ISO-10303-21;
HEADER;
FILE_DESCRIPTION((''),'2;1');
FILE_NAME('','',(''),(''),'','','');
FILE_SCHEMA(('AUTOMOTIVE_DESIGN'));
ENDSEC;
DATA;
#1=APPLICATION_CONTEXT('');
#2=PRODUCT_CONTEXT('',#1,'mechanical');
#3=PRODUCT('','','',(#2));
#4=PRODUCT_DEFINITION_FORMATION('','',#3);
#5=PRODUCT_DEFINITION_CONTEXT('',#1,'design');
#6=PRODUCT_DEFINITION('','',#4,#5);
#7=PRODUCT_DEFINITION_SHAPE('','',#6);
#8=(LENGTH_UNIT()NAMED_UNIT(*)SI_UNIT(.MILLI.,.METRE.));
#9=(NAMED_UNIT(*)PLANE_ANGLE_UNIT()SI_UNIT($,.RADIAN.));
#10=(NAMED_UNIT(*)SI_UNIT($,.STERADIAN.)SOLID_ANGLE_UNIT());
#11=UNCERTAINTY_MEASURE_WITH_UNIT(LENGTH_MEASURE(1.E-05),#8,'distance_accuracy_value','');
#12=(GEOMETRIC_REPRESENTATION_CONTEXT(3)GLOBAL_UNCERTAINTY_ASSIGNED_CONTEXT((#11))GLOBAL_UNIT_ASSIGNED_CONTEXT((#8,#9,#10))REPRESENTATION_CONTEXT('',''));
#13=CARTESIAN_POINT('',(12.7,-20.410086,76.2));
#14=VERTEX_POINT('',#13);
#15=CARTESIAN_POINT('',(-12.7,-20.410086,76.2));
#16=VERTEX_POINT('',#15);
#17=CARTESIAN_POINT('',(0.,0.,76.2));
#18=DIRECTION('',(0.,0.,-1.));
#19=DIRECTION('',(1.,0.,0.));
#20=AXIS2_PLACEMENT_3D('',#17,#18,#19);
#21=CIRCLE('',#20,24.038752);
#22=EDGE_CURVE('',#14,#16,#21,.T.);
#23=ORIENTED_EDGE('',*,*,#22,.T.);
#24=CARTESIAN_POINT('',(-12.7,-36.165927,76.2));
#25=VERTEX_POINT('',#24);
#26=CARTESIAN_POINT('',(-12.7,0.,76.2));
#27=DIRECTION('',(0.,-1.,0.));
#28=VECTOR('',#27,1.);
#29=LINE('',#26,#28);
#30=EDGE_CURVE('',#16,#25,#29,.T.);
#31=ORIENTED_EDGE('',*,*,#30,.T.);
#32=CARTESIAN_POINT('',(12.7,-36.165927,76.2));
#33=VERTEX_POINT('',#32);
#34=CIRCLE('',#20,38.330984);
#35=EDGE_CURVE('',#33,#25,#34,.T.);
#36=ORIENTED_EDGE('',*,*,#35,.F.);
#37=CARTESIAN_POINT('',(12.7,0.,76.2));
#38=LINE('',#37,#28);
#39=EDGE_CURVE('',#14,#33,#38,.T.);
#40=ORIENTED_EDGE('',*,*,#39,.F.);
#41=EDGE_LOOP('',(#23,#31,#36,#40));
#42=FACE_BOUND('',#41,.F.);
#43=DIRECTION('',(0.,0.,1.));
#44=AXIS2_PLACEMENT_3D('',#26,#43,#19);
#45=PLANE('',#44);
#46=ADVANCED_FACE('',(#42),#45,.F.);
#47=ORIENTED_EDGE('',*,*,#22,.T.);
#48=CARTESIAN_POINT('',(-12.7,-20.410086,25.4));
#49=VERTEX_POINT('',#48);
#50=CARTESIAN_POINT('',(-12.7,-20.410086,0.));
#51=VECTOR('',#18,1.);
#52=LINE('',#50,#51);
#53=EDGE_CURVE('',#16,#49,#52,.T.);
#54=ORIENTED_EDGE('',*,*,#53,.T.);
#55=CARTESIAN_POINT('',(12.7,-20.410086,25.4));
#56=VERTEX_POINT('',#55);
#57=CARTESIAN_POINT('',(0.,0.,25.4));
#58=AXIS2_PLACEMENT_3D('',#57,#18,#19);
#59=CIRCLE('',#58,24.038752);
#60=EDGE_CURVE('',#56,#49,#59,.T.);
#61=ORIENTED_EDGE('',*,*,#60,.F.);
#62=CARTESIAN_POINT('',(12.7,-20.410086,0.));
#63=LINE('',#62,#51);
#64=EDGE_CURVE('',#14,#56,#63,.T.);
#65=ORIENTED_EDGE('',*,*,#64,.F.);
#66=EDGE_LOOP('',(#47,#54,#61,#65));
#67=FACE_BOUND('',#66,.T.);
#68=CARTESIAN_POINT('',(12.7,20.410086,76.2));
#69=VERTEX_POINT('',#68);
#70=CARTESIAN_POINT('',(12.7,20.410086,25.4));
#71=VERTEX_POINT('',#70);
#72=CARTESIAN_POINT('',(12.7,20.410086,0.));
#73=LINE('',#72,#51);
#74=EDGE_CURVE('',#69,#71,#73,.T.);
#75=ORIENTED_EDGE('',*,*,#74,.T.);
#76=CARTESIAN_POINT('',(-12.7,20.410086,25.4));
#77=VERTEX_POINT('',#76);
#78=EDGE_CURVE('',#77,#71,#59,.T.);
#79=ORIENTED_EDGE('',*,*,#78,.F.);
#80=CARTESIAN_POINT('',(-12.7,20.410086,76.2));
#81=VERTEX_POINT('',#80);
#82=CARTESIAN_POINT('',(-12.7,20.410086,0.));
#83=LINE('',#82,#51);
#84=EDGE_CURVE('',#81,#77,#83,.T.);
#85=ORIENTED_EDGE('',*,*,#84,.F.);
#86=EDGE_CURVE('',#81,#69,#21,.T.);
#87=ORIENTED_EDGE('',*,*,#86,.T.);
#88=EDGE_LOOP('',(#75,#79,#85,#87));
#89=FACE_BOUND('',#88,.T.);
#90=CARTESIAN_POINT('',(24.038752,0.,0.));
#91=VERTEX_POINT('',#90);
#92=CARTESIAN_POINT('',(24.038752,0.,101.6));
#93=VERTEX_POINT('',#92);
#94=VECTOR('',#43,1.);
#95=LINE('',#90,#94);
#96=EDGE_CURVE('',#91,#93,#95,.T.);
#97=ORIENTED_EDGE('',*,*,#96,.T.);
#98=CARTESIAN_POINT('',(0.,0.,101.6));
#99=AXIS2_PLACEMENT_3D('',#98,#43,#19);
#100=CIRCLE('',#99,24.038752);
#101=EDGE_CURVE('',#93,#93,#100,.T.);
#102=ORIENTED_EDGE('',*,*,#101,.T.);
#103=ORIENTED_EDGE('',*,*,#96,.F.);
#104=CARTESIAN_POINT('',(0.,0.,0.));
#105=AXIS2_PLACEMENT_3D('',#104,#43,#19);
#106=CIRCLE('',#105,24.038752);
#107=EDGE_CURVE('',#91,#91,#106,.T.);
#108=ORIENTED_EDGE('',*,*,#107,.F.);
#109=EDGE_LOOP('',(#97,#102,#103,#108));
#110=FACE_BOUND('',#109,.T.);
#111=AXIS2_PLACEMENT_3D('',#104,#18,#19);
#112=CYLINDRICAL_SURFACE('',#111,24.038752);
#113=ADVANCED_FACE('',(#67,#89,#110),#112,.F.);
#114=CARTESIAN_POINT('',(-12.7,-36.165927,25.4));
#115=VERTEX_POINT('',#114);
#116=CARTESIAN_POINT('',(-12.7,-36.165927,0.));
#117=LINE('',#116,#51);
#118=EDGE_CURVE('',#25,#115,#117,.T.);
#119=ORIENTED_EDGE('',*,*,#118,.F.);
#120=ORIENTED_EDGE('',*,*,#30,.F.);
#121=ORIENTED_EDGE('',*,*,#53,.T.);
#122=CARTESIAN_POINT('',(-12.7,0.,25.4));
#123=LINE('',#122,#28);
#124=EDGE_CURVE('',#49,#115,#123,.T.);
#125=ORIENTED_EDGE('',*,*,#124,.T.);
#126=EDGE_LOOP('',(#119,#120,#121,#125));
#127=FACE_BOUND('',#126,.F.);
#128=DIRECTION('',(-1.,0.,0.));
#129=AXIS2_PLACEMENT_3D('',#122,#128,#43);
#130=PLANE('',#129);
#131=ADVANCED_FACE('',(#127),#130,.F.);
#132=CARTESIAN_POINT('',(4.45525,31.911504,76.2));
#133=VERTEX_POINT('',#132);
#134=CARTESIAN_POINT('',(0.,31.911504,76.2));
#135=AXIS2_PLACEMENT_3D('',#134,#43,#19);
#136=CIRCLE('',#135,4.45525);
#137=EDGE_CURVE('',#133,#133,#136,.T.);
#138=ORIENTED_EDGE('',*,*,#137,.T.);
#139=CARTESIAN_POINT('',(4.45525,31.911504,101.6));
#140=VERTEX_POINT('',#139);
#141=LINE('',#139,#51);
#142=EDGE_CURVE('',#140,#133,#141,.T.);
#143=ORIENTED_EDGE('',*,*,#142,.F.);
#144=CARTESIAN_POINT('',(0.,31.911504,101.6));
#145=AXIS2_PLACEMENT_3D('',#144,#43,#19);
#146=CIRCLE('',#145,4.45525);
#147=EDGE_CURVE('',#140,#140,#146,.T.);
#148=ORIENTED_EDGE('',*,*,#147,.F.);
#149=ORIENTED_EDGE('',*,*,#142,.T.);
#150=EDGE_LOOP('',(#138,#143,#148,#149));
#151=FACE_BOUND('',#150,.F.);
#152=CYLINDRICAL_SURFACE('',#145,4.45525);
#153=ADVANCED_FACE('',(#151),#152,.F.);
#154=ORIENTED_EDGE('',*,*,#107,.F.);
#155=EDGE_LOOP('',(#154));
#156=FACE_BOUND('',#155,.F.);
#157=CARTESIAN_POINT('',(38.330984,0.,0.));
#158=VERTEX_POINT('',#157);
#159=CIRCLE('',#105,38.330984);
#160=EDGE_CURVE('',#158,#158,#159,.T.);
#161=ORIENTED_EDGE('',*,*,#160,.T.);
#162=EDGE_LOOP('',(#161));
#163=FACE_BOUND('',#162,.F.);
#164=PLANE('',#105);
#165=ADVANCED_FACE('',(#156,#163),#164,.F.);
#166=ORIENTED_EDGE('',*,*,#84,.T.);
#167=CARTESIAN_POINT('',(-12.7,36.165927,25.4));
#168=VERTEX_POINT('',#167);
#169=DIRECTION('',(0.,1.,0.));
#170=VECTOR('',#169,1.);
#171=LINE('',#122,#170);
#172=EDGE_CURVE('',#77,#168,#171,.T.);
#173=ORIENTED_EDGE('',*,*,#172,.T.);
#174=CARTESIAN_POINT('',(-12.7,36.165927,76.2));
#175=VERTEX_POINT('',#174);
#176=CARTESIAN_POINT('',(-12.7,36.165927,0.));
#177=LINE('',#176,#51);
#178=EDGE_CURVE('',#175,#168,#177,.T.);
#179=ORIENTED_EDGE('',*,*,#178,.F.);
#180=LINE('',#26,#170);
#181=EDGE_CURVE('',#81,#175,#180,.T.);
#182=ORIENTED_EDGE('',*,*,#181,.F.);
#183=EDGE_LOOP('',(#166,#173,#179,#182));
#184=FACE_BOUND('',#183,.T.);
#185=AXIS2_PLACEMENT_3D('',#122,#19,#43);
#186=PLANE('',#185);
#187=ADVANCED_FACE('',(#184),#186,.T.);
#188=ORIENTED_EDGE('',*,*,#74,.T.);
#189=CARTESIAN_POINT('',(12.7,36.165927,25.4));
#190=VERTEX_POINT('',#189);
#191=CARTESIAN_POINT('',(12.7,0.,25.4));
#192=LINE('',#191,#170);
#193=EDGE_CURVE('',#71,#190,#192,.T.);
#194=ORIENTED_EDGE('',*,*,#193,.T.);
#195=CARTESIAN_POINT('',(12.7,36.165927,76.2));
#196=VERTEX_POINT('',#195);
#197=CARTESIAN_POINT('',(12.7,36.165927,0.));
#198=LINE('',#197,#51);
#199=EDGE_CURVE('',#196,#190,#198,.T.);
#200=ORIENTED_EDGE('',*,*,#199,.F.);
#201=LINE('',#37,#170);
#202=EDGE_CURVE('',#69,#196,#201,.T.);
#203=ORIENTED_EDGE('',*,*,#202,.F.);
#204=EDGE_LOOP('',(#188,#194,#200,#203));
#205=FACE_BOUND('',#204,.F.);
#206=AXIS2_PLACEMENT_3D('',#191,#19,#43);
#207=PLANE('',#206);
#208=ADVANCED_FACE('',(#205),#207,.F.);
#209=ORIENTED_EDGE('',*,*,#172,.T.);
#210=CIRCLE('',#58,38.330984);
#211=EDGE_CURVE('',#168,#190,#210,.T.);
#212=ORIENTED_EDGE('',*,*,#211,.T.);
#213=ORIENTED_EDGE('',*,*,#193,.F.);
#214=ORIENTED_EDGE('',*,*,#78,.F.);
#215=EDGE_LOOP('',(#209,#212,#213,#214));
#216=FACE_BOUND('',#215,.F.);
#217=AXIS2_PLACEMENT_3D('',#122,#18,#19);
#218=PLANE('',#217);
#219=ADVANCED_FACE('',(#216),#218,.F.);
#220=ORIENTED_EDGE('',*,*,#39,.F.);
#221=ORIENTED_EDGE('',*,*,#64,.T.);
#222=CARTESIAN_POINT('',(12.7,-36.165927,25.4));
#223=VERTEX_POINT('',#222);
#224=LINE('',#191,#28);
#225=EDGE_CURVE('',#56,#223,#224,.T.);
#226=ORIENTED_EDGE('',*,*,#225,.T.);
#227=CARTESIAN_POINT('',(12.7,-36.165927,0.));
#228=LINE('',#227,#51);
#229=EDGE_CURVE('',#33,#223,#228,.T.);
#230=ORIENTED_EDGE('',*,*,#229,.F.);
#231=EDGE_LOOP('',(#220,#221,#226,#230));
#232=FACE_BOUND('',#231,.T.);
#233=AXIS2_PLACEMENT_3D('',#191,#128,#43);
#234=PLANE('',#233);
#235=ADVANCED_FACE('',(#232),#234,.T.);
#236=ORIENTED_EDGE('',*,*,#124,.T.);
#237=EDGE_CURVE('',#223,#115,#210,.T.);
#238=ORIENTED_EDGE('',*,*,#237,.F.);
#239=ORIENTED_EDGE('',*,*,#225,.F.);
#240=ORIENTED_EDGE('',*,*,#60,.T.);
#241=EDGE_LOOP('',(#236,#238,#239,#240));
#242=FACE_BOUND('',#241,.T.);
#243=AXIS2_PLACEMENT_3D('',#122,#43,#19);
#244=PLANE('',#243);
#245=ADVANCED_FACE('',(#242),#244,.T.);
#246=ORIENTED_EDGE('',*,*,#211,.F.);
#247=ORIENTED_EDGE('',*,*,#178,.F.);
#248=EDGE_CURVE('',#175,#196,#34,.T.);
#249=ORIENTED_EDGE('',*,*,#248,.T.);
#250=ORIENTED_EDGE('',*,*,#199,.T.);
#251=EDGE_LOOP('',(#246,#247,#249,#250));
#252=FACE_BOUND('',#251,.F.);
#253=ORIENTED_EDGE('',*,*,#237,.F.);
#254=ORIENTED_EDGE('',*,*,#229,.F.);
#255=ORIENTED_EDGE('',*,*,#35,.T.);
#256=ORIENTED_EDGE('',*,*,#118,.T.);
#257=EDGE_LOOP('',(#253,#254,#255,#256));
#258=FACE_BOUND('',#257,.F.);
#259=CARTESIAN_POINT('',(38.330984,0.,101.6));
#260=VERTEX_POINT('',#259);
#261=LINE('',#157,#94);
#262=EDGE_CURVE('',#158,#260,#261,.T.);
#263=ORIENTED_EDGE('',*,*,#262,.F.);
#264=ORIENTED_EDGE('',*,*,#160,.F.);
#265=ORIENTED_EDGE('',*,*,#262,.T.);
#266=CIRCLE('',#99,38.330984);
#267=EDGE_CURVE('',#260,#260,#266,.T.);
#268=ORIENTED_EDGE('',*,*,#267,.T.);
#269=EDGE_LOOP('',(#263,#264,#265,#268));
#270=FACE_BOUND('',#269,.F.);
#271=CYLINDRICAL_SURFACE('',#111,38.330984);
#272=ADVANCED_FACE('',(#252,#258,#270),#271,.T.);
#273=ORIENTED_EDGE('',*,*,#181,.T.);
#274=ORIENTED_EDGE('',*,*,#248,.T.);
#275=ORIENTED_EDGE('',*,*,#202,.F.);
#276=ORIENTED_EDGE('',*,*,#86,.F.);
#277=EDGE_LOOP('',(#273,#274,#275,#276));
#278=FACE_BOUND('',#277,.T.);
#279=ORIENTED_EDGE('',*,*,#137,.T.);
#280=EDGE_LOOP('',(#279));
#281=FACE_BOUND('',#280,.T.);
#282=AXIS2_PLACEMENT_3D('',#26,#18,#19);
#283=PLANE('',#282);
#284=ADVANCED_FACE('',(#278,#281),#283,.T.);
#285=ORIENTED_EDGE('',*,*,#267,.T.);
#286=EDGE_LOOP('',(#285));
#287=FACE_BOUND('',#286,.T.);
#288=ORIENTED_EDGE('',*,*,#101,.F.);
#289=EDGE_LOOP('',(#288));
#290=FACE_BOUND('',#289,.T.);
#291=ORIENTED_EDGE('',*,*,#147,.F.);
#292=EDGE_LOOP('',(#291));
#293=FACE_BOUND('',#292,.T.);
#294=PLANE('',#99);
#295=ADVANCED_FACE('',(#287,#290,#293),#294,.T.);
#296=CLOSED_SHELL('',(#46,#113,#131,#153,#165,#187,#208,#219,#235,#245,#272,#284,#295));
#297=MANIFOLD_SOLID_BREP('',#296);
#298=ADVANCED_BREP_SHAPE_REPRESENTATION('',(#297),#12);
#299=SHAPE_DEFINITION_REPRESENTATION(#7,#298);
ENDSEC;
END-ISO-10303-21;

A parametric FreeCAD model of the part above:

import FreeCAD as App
import Part
import Sketcher
Q = App.Units.Quantity


def add_polygon(sketch, points):
    """Adds a closed chain of lines whose ends are joined by coincident constraints."""
    first, n = sketch.GeometryCount, len(points)
    for a, b in zip(points, points[1:] + points[:1]):
        sketch.addGeometry(Part.LineSegment(App.Vector(*a, 0), App.Vector(*b, 0)), False)
    for i in range(n):
        sketch.addConstraint(Sketcher.Constraint("Coincident", first + i, 2, first + (i + 1) % n, 1))

doc = App.newDocument("Part")
body = doc.addObject("PartDesign::Body", "Body")

sketch1 = body.newObject("Sketcher::SketchObject", "Sketch")
sketch1.AttachmentSupport = (doc.getObject("XY_Plane"), [""])
sketch1.MapMode = "FlatFace"
sketch1.addGeometry([
    Part.Circle(App.Vector(0, 0, 0), App.Vector(0, 0, 1), 38.330984),
    Part.Circle(App.Vector(0, 0, 0), App.Vector(0, 0, 1), 24.038752),
], False)
sketch1.addConstraint([
    Sketcher.Constraint("Coincident", 0, 3, -1, 1),
    Sketcher.Constraint("Coincident", 1, 3, -1, 1),
    Sketcher.Constraint("Diameter", 0, Q("76.661967 mm")),
    Sketcher.Constraint("Diameter", 1, Q("48.077505 mm")),
])
pad1 = body.newObject("PartDesign::Pad", "Pad")
pad1.Profile = sketch1
pad1.Length = Q("4 in")

sketch2 = body.newObject("Sketcher::SketchObject", "Sketch001")
sketch2.AttachmentSupport = (doc.getObject("XZ_Plane"), [""])
sketch2.MapMode = "FlatFace"
add_polygon(sketch2, [(-12.7, 76.2), (-12.7, 25.4), (12.7, 25.4), (12.7, 76.2)])
sketch2.addConstraint([
    Sketcher.Constraint("Vertical", 0),
    Sketcher.Constraint("Horizontal", 1),
    Sketcher.Constraint("Vertical", 2),
    Sketcher.Constraint("Horizontal", 3),
    Sketcher.Constraint("DistanceX", 1, 1, 1, 2, Q("1 in")),
    Sketcher.Constraint("DistanceY", 0, 2, 0, 1, Q("2 in")),
    Sketcher.Constraint("DistanceY", -1, 1, 0, 2, Q("1 in")),
    Sketcher.Constraint("DistanceX", 0, 2, -1, 1, Q("0.5 in")),
])
pocket1 = body.newObject("PartDesign::Pocket", "Pocket")
pocket1.Profile = sketch2
pocket1.Type = "ThroughAll"
pocket1.Midplane = True

sketch3 = body.newObject("Sketcher::SketchObject", "Sketch002")
sketch3.AttachmentSupport = (doc.getObject("XY_Plane"), [""])
sketch3.MapMode = "FlatFace"
sketch3.AttachmentOffset = App.Placement(App.Vector(0, 0, 4 * 25.4), App.Rotation())
sketch3.addGeometry(Part.Circle(App.Vector(0, 31.911504, 0), App.Vector(0, 0, 1), 4.45525), False)
sketch3.addConstraint([
    Sketcher.Constraint("PointOnObject", 0, 3, -2),
    Sketcher.Constraint("Diameter", 0, Q("8.9105 mm")),
    Sketcher.Constraint("DistanceY", -1, 1, 0, 3, Q("31.911504 mm")),
])
pocket2 = body.newObject("PartDesign::Pocket", "Pocket001")
pocket2.Profile = sketch3
pocket2.Length = Q("1 in")

doc.recompute()
